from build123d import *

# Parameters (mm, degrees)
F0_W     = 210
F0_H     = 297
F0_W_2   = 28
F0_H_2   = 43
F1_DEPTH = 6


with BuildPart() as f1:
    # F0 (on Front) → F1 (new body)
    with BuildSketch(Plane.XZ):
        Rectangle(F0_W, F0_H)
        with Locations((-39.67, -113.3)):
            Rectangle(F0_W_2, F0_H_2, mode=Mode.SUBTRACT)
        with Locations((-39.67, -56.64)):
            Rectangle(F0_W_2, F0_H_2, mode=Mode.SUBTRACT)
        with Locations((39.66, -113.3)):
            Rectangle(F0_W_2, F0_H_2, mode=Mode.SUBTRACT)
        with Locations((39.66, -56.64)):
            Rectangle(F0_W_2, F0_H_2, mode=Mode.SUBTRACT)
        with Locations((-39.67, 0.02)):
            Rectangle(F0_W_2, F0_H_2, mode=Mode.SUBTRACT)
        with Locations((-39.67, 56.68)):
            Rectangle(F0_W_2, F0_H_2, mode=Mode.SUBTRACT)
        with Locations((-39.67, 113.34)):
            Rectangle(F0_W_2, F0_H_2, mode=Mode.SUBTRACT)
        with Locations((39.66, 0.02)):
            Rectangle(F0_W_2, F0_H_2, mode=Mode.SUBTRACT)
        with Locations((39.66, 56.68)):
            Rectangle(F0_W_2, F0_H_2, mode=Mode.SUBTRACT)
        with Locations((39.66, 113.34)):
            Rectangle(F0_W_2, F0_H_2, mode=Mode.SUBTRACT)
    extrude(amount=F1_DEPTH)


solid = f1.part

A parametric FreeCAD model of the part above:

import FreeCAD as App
import Part
import Sketcher
from FreeCAD import Vector

doc = App.newDocument("Part")
body = doc.addObject("PartDesign::Body", "Body")

sketch1 = doc.addObject("Sketcher::SketchObject", "Sketch")
body.addObject(sketch1)
sketch1.AttachmentSupport = (doc.XZ_Plane, [""])
sketch1.MapMode = "FlatFace"
sketch1.addGeometry([
    Part.LineSegment(Vector(-105, 148.5, 0), Vector(-105, -148.5, 0)),
    Part.LineSegment(Vector(-105, -148.5, 0), Vector(105, -148.5, 0)),
    Part.LineSegment(Vector(105, -148.5, 0), Vector(105, 148.5, 0)),
    Part.LineSegment(Vector(105, 148.5, 0), Vector(-105, 148.5, 0)),
    Part.LineSegment(Vector(-25.67, -134.8, 0), Vector(-53.67, -134.8, 0)),
    Part.LineSegment(Vector(-53.67, -134.8, 0), Vector(-53.67, -91.8, 0)),
    Part.LineSegment(Vector(-53.67, -91.8, 0), Vector(-25.67, -91.8, 0)),
    Part.LineSegment(Vector(-25.67, -91.8, 0), Vector(-25.67, -134.8, 0)),
    Part.LineSegment(Vector(-25.67, -78.14, 0), Vector(-53.67, -78.14, 0)),
    Part.LineSegment(Vector(-53.67, -78.14, 0), Vector(-53.67, -35.14, 0)),
    Part.LineSegment(Vector(-53.67, -35.14, 0), Vector(-25.67, -35.14, 0)),
    Part.LineSegment(Vector(-25.67, -35.14, 0), Vector(-25.67, -78.14, 0)),
    Part.LineSegment(Vector(53.66, -134.8, 0), Vector(25.66, -134.8, 0)),
    Part.LineSegment(Vector(25.66, -134.8, 0), Vector(25.66, -91.8, 0)),
    Part.LineSegment(Vector(25.66, -91.8, 0), Vector(53.66, -91.8, 0)),
    Part.LineSegment(Vector(53.66, -91.8, 0), Vector(53.66, -134.8, 0)),
    Part.LineSegment(Vector(53.66, -78.14, 0), Vector(25.66, -78.14, 0)),
    Part.LineSegment(Vector(25.66, -78.14, 0), Vector(25.66, -35.14, 0)),
    Part.LineSegment(Vector(25.66, -35.14, 0), Vector(53.66, -35.14, 0)),
    Part.LineSegment(Vector(53.66, -35.14, 0), Vector(53.66, -78.14, 0)),
    Part.LineSegment(Vector(-25.67, -21.48, 0), Vector(-53.67, -21.48, 0)),
    Part.LineSegment(Vector(-53.67, -21.48, 0), Vector(-53.67, 21.52, 0)),
    Part.LineSegment(Vector(-53.67, 21.52, 0), Vector(-25.67, 21.52, 0)),
    Part.LineSegment(Vector(-25.67, 21.52, 0), Vector(-25.67, -21.48, 0)),
    Part.LineSegment(Vector(-25.67, 35.18, 0), Vector(-53.67, 35.18, 0)),
    Part.LineSegment(Vector(-53.67, 35.18, 0), Vector(-53.67, 78.18, 0)),
    Part.LineSegment(Vector(-53.67, 78.18, 0), Vector(-25.67, 78.18, 0)),
    Part.LineSegment(Vector(-25.67, 78.18, 0), Vector(-25.67, 35.18, 0)),
    Part.LineSegment(Vector(-25.67, 91.84, 0), Vector(-53.67, 91.84, 0)),
    Part.LineSegment(Vector(-53.67, 91.84, 0), Vector(-53.67, 134.84, 0)),
    Part.LineSegment(Vector(-53.67, 134.84, 0), Vector(-25.67, 134.84, 0)),
    Part.LineSegment(Vector(-25.67, 134.84, 0), Vector(-25.67, 91.84, 0)),
    Part.LineSegment(Vector(53.66, -21.48, 0), Vector(25.66, -21.48, 0)),
    Part.LineSegment(Vector(25.66, -21.48, 0), Vector(25.66, 21.52, 0)),
    Part.LineSegment(Vector(25.66, 21.52, 0), Vector(53.66, 21.52, 0)),
    Part.LineSegment(Vector(53.66, 21.52, 0), Vector(53.66, -21.48, 0)),
    Part.LineSegment(Vector(53.66, 35.18, 0), Vector(25.66, 35.18, 0)),
    Part.LineSegment(Vector(25.66, 35.18, 0), Vector(25.66, 78.18, 0)),
    Part.LineSegment(Vector(25.66, 78.18, 0), Vector(53.66, 78.18, 0)),
    Part.LineSegment(Vector(53.66, 78.18, 0), Vector(53.66, 35.18, 0)),
    Part.LineSegment(Vector(53.66, 91.84, 0), Vector(25.66, 91.84, 0)),
    Part.LineSegment(Vector(25.66, 91.84, 0), Vector(25.66, 134.84, 0)),
    Part.LineSegment(Vector(25.66, 134.84, 0), Vector(53.66, 134.84, 0)),
    Part.LineSegment(Vector(53.66, 134.84, 0), Vector(53.66, 91.84, 0)),
], False)
sketch1.addConstraint([
    Sketcher.Constraint("Coincident", 0, 2, 1, 1),
    Sketcher.Constraint("Coincident", 1, 2, 2, 1),
    Sketcher.Constraint("Coincident", 2, 2, 3, 1),
    Sketcher.Constraint("Coincident", 3, 2, 0, 1),
    Sketcher.Constraint("Coincident", 4, 2, 5, 1),
    Sketcher.Constraint("Coincident", 5, 2, 6, 1),
    Sketcher.Constraint("Coincident", 6, 2, 7, 1),
    Sketcher.Constraint("Coincident", 7, 2, 4, 1),
    Sketcher.Constraint("Coincident", 8, 2, 9, 1),
    Sketcher.Constraint("Coincident", 9, 2, 10, 1),
    Sketcher.Constraint("Coincident", 10, 2, 11, 1),
    Sketcher.Constraint("Coincident", 11, 2, 8, 1),
    Sketcher.Constraint("Coincident", 12, 2, 13, 1),
    Sketcher.Constraint("Coincident", 13, 2, 14, 1),
    Sketcher.Constraint("Coincident", 14, 2, 15, 1),
    Sketcher.Constraint("Coincident", 15, 2, 12, 1),
    Sketcher.Constraint("Coincident", 16, 2, 17, 1),
    Sketcher.Constraint("Coincident", 17, 2, 18, 1),
    Sketcher.Constraint("Coincident", 18, 2, 19, 1),
    Sketcher.Constraint("Coincident", 19, 2, 16, 1),
    Sketcher.Constraint("Coincident", 20, 2, 21, 1),
    Sketcher.Constraint("Coincident", 21, 2, 22, 1),
    Sketcher.Constraint("Coincident", 22, 2, 23, 1),
    Sketcher.Constraint("Coincident", 23, 2, 20, 1),
    Sketcher.Constraint("Coincident", 24, 2, 25, 1),
    Sketcher.Constraint("Coincident", 25, 2, 26, 1),
    Sketcher.Constraint("Coincident", 26, 2, 27, 1),
    Sketcher.Constraint("Coincident", 27, 2, 24, 1),
    Sketcher.Constraint("Coincident", 28, 2, 29, 1),
    Sketcher.Constraint("Coincident", 29, 2, 30, 1),
    Sketcher.Constraint("Coincident", 30, 2, 31, 1),
    Sketcher.Constraint("Coincident", 31, 2, 28, 1),
    Sketcher.Constraint("Coincident", 32, 2, 33, 1),
    Sketcher.Constraint("Coincident", 33, 2, 34, 1),
    Sketcher.Constraint("Coincident", 34, 2, 35, 1),
    Sketcher.Constraint("Coincident", 35, 2, 32, 1),
    Sketcher.Constraint("Coincident", 36, 2, 37, 1),
    Sketcher.Constraint("Coincident", 37, 2, 38, 1),
    Sketcher.Constraint("Coincident", 38, 2, 39, 1),
    Sketcher.Constraint("Coincident", 39, 2, 36, 1),
    Sketcher.Constraint("Coincident", 40, 2, 41, 1),
    Sketcher.Constraint("Coincident", 41, 2, 42, 1),
    Sketcher.Constraint("Coincident", 42, 2, 43, 1),
    Sketcher.Constraint("Coincident", 43, 2, 40, 1),
    Sketcher.Constraint("Vertical", 0),
    Sketcher.Constraint("Horizontal", 1),
    Sketcher.Constraint("Vertical", 2),
    Sketcher.Constraint("Horizontal", 3),
    Sketcher.Constraint("Horizontal", 4),
    Sketcher.Constraint("Vertical", 5),
    Sketcher.Constraint("Horizontal", 6),
    Sketcher.Constraint("Vertical", 7),
    Sketcher.Constraint("Horizontal", 8),
    Sketcher.Constraint("Vertical", 9),
    Sketcher.Constraint("Horizontal", 10),
    Sketcher.Constraint("Vertical", 11),
    Sketcher.Constraint("Horizontal", 12),
    Sketcher.Constraint("Vertical", 13),
    Sketcher.Constraint("Horizontal", 14),
    Sketcher.Constraint("Vertical", 15),
    Sketcher.Constraint("Horizontal", 16),
    Sketcher.Constraint("Vertical", 17),
    Sketcher.Constraint("Horizontal", 18),
    Sketcher.Constraint("Vertical", 19),
    Sketcher.Constraint("Horizontal", 20),
    Sketcher.Constraint("Vertical", 21),
    Sketcher.Constraint("Horizontal", 22),
    Sketcher.Constraint("Vertical", 23),
    Sketcher.Constraint("Horizontal", 24),
    Sketcher.Constraint("Vertical", 25),
    Sketcher.Constraint("Horizontal", 26),
    Sketcher.Constraint("Vertical", 27),
    Sketcher.Constraint("Horizontal", 28),
    Sketcher.Constraint("Vertical", 29),
    Sketcher.Constraint("Horizontal", 30),
    Sketcher.Constraint("Vertical", 31),
    Sketcher.Constraint("Horizontal", 32),
    Sketcher.Constraint("Vertical", 33),
    Sketcher.Constraint("Horizontal", 34),
    Sketcher.Constraint("Vertical", 35),
    Sketcher.Constraint("Horizontal", 36),
    Sketcher.Constraint("Vertical", 37),
    Sketcher.Constraint("Horizontal", 38),
    Sketcher.Constraint("Vertical", 39),
    Sketcher.Constraint("Horizontal", 40),
    Sketcher.Constraint("Vertical", 41),
    Sketcher.Constraint("Horizontal", 42),
    Sketcher.Constraint("Vertical", 43),
    Sketcher.Constraint("Symmetric", 0, 2, 2, 2, -1, 1),
    Sketcher.Constraint("Horizontal", 7, 2, 12, 2),
    Sketcher.Constraint("Horizontal", 6, 2, 13, 2),
    Sketcher.Constraint("Horizontal", 11, 2, 16, 2),
    Sketcher.Constraint("Horizontal", 10, 2, 17, 2),
    Sketcher.Constraint("Horizontal", 23, 2, 32, 2),
    Sketcher.Constraint("Horizontal", 22, 2, 33, 2),
    Sketcher.Constraint("Horizontal", 27, 2, 36, 2),
    Sketcher.Constraint("Horizontal", 26, 2, 37, 2),
    Sketcher.Constraint("Horizontal", 31, 2, 40, 2),
    Sketcher.Constraint("Horizontal", 30, 2, 41, 2),
    Sketcher.Constraint("Vertical", 5, 2, 8, 2),
    Sketcher.Constraint("Vertical", 7, 2, 10, 2),
    Sketcher.Constraint("Vertical", 13, 2, 16, 2),
    Sketcher.Constraint("Vertical", 15, 2, 18, 2),
    Sketcher.Constraint("Vertical", 9, 2, 20, 2),
    Sketcher.Constraint("Vertical", 11, 2, 22, 2),
    Sketcher.Constraint("Vertical", 21, 2, 24, 2),
    Sketcher.Constraint("Vertical", 23, 2, 26, 2),
    Sketcher.Constraint("Vertical", 25, 2, 28, 2),
    Sketcher.Constraint("Vertical", 27, 2, 30, 2),
    Sketcher.Constraint("Vertical", 17, 2, 32, 2),
    Sketcher.Constraint("Vertical", 19, 2, 34, 2),
    Sketcher.Constraint("Vertical", 33, 2, 36, 2),
    Sketcher.Constraint("Vertical", 35, 2, 38, 2),
    Sketcher.Constraint("Vertical", 37, 2, 40, 2),
    Sketcher.Constraint("Vertical", 39, 2, 42, 2),
    Sketcher.Constraint("Equal", 10, 12),
    Sketcher.Constraint("Equal", 7, 9),
    Sketcher.Constraint("Equal", 19, 21),
    Sketcher.Constraint("Equal", 23, 25),
    Sketcher.Constraint("Equal", 27, 29),
    Sketcher.Constraint("DistanceX", 1, 1, 1, 2, 210.0),
    Sketcher.Constraint("DistanceX", 4, 2, 4, 1, 28.0),
    Sketcher.Constraint("DistanceY", 0, 2, 0, 1, 297.0),
    Sketcher.Constraint("DistanceY", 5, 1, 5, 2, 43.0),
    Sketcher.Constraint("DistanceY", 4, 2, -1, 1, 134.8),
    Sketcher.Constraint("DistanceX", 4, 2, -1, 1, 53.67),
    Sketcher.Constraint("DistanceY", 8, 2, -1, 1, 78.14),
    Sketcher.Constraint("DistanceX", -1, 1, 12, 2, 25.66),
    Sketcher.Constraint("DistanceY", 20, 2, -1, 1, 21.48),
    Sketcher.Constraint("DistanceY", -1, 1, 24, 2, 35.18),
    Sketcher.Constraint("DistanceY", -1, 1, 28, 2, 91.84),
])
pad1 = doc.addObject("PartDesign::Pad", "Pad")
body.addObject(pad1)
pad1.Profile = sketch1
pad1.Length = 6

doc.recompute()
